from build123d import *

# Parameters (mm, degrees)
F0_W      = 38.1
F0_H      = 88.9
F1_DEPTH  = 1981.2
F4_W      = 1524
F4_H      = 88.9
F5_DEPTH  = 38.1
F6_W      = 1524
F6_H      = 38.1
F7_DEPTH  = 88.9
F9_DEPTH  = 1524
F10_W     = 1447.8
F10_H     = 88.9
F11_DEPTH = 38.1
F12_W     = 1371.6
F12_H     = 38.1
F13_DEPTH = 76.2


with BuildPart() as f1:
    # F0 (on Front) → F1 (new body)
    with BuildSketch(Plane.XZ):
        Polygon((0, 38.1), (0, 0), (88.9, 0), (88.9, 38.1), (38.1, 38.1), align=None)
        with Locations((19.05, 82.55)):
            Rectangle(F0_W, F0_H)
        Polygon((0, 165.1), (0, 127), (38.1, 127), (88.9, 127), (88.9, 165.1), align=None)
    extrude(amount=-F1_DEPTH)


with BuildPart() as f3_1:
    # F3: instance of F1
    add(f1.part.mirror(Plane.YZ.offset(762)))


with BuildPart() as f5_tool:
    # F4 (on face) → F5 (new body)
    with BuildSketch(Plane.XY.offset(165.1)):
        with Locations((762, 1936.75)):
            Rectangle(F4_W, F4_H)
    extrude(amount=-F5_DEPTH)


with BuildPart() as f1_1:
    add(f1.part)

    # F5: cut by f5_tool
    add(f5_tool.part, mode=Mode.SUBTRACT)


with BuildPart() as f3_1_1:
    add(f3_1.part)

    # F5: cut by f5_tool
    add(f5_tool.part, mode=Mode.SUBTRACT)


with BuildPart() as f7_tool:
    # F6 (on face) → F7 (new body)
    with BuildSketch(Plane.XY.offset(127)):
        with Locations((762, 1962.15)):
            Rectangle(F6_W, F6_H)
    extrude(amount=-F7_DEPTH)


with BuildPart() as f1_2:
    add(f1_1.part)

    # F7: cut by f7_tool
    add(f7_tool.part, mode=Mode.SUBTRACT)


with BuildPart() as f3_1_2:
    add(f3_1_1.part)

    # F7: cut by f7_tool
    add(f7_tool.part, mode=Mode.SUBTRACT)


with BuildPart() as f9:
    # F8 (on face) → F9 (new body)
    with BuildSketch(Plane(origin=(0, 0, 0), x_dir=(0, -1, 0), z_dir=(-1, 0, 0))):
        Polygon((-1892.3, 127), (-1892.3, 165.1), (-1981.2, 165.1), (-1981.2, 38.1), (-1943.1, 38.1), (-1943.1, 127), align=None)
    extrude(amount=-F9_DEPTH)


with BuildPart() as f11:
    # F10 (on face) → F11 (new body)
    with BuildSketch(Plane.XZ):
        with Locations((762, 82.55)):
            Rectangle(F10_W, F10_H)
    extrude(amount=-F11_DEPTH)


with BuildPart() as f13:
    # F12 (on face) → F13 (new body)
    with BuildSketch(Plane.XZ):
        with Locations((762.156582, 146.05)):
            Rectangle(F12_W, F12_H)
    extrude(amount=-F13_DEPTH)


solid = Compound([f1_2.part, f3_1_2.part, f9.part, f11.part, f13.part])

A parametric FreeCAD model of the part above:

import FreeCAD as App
import Part
import Sketcher
from FreeCAD import Vector
Q = App.Units.Quantity

doc = App.newDocument("Part")
body = doc.addObject("PartDesign::Body", "Body")

# Sketch on XZ plane
sketch1 = body.newObject("Sketcher::SketchObject", "Sketch")
sketch1.AttachmentSupport = (doc.getObject("XZ_Plane"), [""])
sketch1.MapMode = "FlatFace"
sketch1.addGeometry(Part.LineSegment(Vector(0, 0, 0), Vector(89, 0, 0)), False)
sketch1.addGeometry(Part.LineSegment(Vector(89, 0, 0), Vector(89, 38, 0)), False)
sketch1.addGeometry(Part.LineSegment(Vector(89, 38, 0), Vector(38, 38, 0)), False)
sketch1.addGeometry(Part.LineSegment(Vector(38, 38, 0), Vector(38, 127, 0)), False)
sketch1.addGeometry(Part.LineSegment(Vector(38, 127, 0), Vector(89, 127, 0)), False)
sketch1.addGeometry(Part.LineSegment(Vector(89, 127, 0), Vector(89, 165, 0)), False)
sketch1.addGeometry(Part.LineSegment(Vector(89, 165, 0), Vector(0, 165, 0)), False)
sketch1.addGeometry(Part.LineSegment(Vector(0, 165, 0), Vector(0, 0, 0)), False)
sketch1.addConstraint(Sketcher.Constraint("Coincident", 0, 2, 1, 1))
sketch1.addConstraint(Sketcher.Constraint("Coincident", 1, 2, 2, 1))
sketch1.addConstraint(Sketcher.Constraint("Coincident", 2, 2, 3, 1))
sketch1.addConstraint(Sketcher.Constraint("Coincident", 3, 2, 4, 1))
sketch1.addConstraint(Sketcher.Constraint("Coincident", 4, 2, 5, 1))
sketch1.addConstraint(Sketcher.Constraint("Coincident", 5, 2, 6, 1))
sketch1.addConstraint(Sketcher.Constraint("Coincident", 6, 2, 7, 1))
sketch1.addConstraint(Sketcher.Constraint("Coincident", 7, 2, 0, 1))
sketch1.addConstraint(Sketcher.Constraint("Horizontal", 0))
sketch1.addConstraint(Sketcher.Constraint("Vertical", 1))
sketch1.addConstraint(Sketcher.Constraint("Horizontal", 2))
sketch1.addConstraint(Sketcher.Constraint("Vertical", 3))
sketch1.addConstraint(Sketcher.Constraint("Horizontal", 4))
sketch1.addConstraint(Sketcher.Constraint("Vertical", 5))
sketch1.addConstraint(Sketcher.Constraint("Horizontal", 6))
sketch1.addConstraint(Sketcher.Constraint("Vertical", 7))
sketch1.addConstraint(Sketcher.Constraint("Coincident", 7, 2, -1, 1))
sketch1.addConstraint(Sketcher.Constraint("Vertical", 1, 2, 4, 2))
sketch1.addConstraint(Sketcher.Constraint("Equal", 6, 3))
sketch1.addConstraint(Sketcher.Constraint("Equal", 1, 5))
sketch1.addConstraint(Sketcher.Constraint("DistanceX", 2, 2, 2, 1, Q("2 in")))
sketch1.addConstraint(Sketcher.Constraint("DistanceX", 0, 1, 0, 2, Q("3.5 in")))
sketch1.addConstraint(Sketcher.Constraint("DistanceY", 1, 1, 1, 2, Q("1.5 in")))
pad1 = body.newObject("PartDesign::Pad", "Pad")
pad1.Profile = sketch1
pad1.Length = Q("78 in")
pad1.Reversed = True
body2 = doc.addObject("PartDesign::Body", "Body001")
doc.recompute()

mirroring = doc.addObject("Part::Mirroring", "Mirroring")
mirroring.Source = body
mirroring.Base = Vector(762, 0, 0)
mirroring.Normal = Vector(1, 0, 0)
body2.BaseFeature = mirroring
doc.recompute()
body3 = doc.addObject("PartDesign::Body", "Body002")

# Sketch on XY plane
sketch2 = body3.newObject("Sketcher::SketchObject", "Sketch001")
sketch2.AttachmentSupport = (doc.getObject("XY_Plane002"), [""])
sketch2.MapMode = "FlatFace"
sketch2.AttachmentOffset = App.Placement(Vector(0, 0, 6.5 * 25.4), App.Rotation())
sketch2.addGeometry(Part.LineSegment(Vector(0, 1981, 0), Vector(0, 1892, 0)), False)
sketch2.addGeometry(Part.LineSegment(Vector(0, 1892, 0), Vector(1524, 1892, 0)), False)
sketch2.addGeometry(Part.LineSegment(Vector(1524, 1892, 0), Vector(1524, 1981, 0)), False)
sketch2.addGeometry(Part.LineSegment(Vector(1524, 1981, 0), Vector(0, 1981, 0)), False)
sketch2.addConstraint(Sketcher.Constraint("Coincident", 0, 2, 1, 1))
sketch2.addConstraint(Sketcher.Constraint("Coincident", 1, 2, 2, 1))
sketch2.addConstraint(Sketcher.Constraint("Coincident", 2, 2, 3, 1))
sketch2.addConstraint(Sketcher.Constraint("Coincident", 3, 2, 0, 1))
sketch2.addConstraint(Sketcher.Constraint("Vertical", 0))
sketch2.addConstraint(Sketcher.Constraint("Horizontal", 1))
sketch2.addConstraint(Sketcher.Constraint("Vertical", 2))
sketch2.addConstraint(Sketcher.Constraint("Horizontal", 3))
sketch2.addConstraint(Sketcher.Constraint("PointOnObject", 0, 2, -2))
sketch2.addConstraint(Sketcher.Constraint("DistanceX", 1, 1, 1, 2, Q("60 in")))
sketch2.addConstraint(Sketcher.Constraint("DistanceY", 0, 2, 0, 1, Q("3.5 in")))
sketch2.addConstraint(Sketcher.Constraint("DistanceY", -1, 1, 2, 2, Q("78 in")))
pad2 = body3.newObject("PartDesign::Pad", "Pad001")
pad2.Profile = sketch2
pad2.Length = Q("1.5 in")
pad2.Reversed = True
doc.recompute()

body4 = doc.addObject("PartDesign::Body", "Body003")
body4.BaseFeature = body3
boolean = body.newObject("PartDesign::Boolean", "Boolean")
boolean.Type = "Cut"
boolean.addObjects([body4])
doc.recompute()

boolean2 = body2.newObject("PartDesign::Boolean", "Boolean001")
boolean2.Type = "Cut"
boolean2.addObjects([body3])
body5 = doc.addObject("PartDesign::Body", "Body004")

# Sketch on XY plane
sketch3 = body5.newObject("Sketcher::SketchObject", "Sketch002")
sketch3.AttachmentSupport = (doc.getObject("XY_Plane004"), [""])
sketch3.MapMode = "FlatFace"
sketch3.AttachmentOffset = App.Placement(Vector(0, 0, 5 * 25.4), App.Rotation())
sketch3.addGeometry(Part.LineSegment(Vector(0, 1981, 0), Vector(0, 1943, 0)), False)
sketch3.addGeometry(Part.LineSegment(Vector(0, 1943, 0), Vector(1524, 1943, 0)), False)
sketch3.addGeometry(Part.LineSegment(Vector(1524, 1943, 0), Vector(1524, 1981, 0)), False)
sketch3.addGeometry(Part.LineSegment(Vector(1524, 1981, 0), Vector(0, 1981, 0)), False)
sketch3.addConstraint(Sketcher.Constraint("Coincident", 0, 2, 1, 1))
sketch3.addConstraint(Sketcher.Constraint("Coincident", 1, 2, 2, 1))
sketch3.addConstraint(Sketcher.Constraint("Coincident", 2, 2, 3, 1))
sketch3.addConstraint(Sketcher.Constraint("Coincident", 3, 2, 0, 1))
sketch3.addConstraint(Sketcher.Constraint("Vertical", 0))
sketch3.addConstraint(Sketcher.Constraint("Horizontal", 1))
sketch3.addConstraint(Sketcher.Constraint("Vertical", 2))
sketch3.addConstraint(Sketcher.Constraint("Horizontal", 3))
sketch3.addConstraint(Sketcher.Constraint("PointOnObject", 0, 2, -2))
sketch3.addConstraint(Sketcher.Constraint("DistanceX", 1, 1, 1, 2, Q("60 in")))
sketch3.addConstraint(Sketcher.Constraint("DistanceY", 0, 2, 0, 1, Q("1.5 in")))
sketch3.addConstraint(Sketcher.Constraint("DistanceY", -1, 1, 2, 2, Q("78 in")))
pad3 = body5.newObject("PartDesign::Pad", "Pad002")
pad3.Profile = sketch3
pad3.Length = Q("3.5 in")
pad3.Reversed = True
doc.recompute()

body6 = doc.addObject("PartDesign::Body", "Body005")
body6.BaseFeature = body5
boolean3 = body.newObject("PartDesign::Boolean", "Boolean002")
boolean3.Type = "Cut"
boolean3.addObjects([body6])
doc.recompute()

boolean4 = body2.newObject("PartDesign::Boolean", "Boolean003")
boolean4.Type = "Cut"
boolean4.addObjects([body5])
body7 = doc.addObject("PartDesign::Body", "Body006")

# Sketch on YZ plane
sketch4 = body7.newObject("Sketcher::SketchObject", "Sketch003")
sketch4.AttachmentSupport = (doc.getObject("YZ_Plane006"), [""])
sketch4.MapMode = "FlatFace"
sketch4.addGeometry(Part.LineSegment(Vector(1892, 127, 0), Vector(1892, 165, 0)), False)
sketch4.addGeometry(Part.LineSegment(Vector(1892, 165, 0), Vector(1981, 165, 0)), False)
sketch4.addGeometry(Part.LineSegment(Vector(1981, 165, 0), Vector(1981, 38, 0)), False)
sketch4.addGeometry(Part.LineSegment(Vector(1981, 38, 0), Vector(1943, 38, 0)), False)
sketch4.addGeometry(Part.LineSegment(Vector(1943, 38, 0), Vector(1943, 127, 0)), False)
sketch4.addGeometry(Part.LineSegment(Vector(1943, 127, 0), Vector(1892, 127, 0)), False)
sketch4.addConstraint(Sketcher.Constraint("Coincident", 0, 2, 1, 1))
sketch4.addConstraint(Sketcher.Constraint("Coincident", 1, 2, 2, 1))
sketch4.addConstraint(Sketcher.Constraint("Coincident", 2, 2, 3, 1))
sketch4.addConstraint(Sketcher.Constraint("Coincident", 3, 2, 4, 1))
sketch4.addConstraint(Sketcher.Constraint("Coincident", 4, 2, 5, 1))
sketch4.addConstraint(Sketcher.Constraint("Coincident", 5, 2, 0, 1))
sketch4.addConstraint(Sketcher.Constraint("Vertical", 0))
sketch4.addConstraint(Sketcher.Constraint("Horizontal", 1))
sketch4.addConstraint(Sketcher.Constraint("Vertical", 2))
sketch4.addConstraint(Sketcher.Constraint("Horizontal", 3))
sketch4.addConstraint(Sketcher.Constraint("Vertical", 4))
sketch4.addConstraint(Sketcher.Constraint("Horizontal", 5))
sketch4.addConstraint(Sketcher.Constraint("Equal", 3, 0))
sketch4.addConstraint(Sketcher.Constraint("Equal", 1, 4))
sketch4.addConstraint(Sketcher.Constraint("DistanceX", 5, 2, 5, 1, Q("2 in")))
sketch4.addConstraint(Sketcher.Constraint("DistanceY", 2, 2, 2, 1, Q("5 in")))
sketch4.addConstraint(Sketcher.Constraint("DistanceX", -1, 1, 1, 2, Q("78 in")))
sketch4.addConstraint(Sketcher.Constraint("DistanceY", -1, 1, 4, 2, Q("5 in")))
pad4 = body7.newObject("PartDesign::Pad", "Pad003")
pad4.Profile = sketch4
pad4.Length = Q("60 in")
body8 = doc.addObject("PartDesign::Body", "Body007")

# Sketch on XZ plane
sketch5 = body8.newObject("Sketcher::SketchObject", "Sketch004")
sketch5.AttachmentSupport = (doc.getObject("XZ_Plane007"), [""])
sketch5.MapMode = "FlatFace"
sketch5.addGeometry(Part.LineSegment(Vector(38, 127, 0), Vector(38, 38, 0)), False)
sketch5.addGeometry(Part.LineSegment(Vector(38, 38, 0), Vector(1486, 38, 0)), False)
sketch5.addGeometry(Part.LineSegment(Vector(1486, 38, 0), Vector(1486, 127, 0)), False)
sketch5.addGeometry(Part.LineSegment(Vector(1486, 127, 0), Vector(38, 127, 0)), False)
sketch5.addConstraint(Sketcher.Constraint("Coincident", 0, 2, 1, 1))
sketch5.addConstraint(Sketcher.Constraint("Coincident", 1, 2, 2, 1))
sketch5.addConstraint(Sketcher.Constraint("Coincident", 2, 2, 3, 1))
sketch5.addConstraint(Sketcher.Constraint("Coincident", 3, 2, 0, 1))
sketch5.addConstraint(Sketcher.Constraint("Vertical", 0))
sketch5.addConstraint(Sketcher.Constraint("Horizontal", 1))
sketch5.addConstraint(Sketcher.Constraint("Vertical", 2))
sketch5.addConstraint(Sketcher.Constraint("Horizontal", 3))
sketch5.addConstraint(Sketcher.Constraint("DistanceX", 1, 1, 1, 2, Q("57 in")))
sketch5.addConstraint(Sketcher.Constraint("DistanceY", 0, 2, 0, 1, Q("3.5 in")))
sketch5.addConstraint(Sketcher.Constraint("DistanceY", -1, 1, 2, 2, Q("5 in")))
sketch5.addConstraint(Sketcher.Constraint("DistanceX", -1, 1, 0, 2, Q("1.5 in")))
pad5 = body8.newObject("PartDesign::Pad", "Pad004")
pad5.Profile = sketch5
pad5.Length = Q("1.5 in")
pad5.Reversed = True
body9 = doc.addObject("PartDesign::Body", "Body008")

# Sketch on XZ plane
sketch6 = body9.newObject("Sketcher::SketchObject", "Sketch005")
sketch6.AttachmentSupport = (doc.getObject("XZ_Plane008"), [""])
sketch6.MapMode = "FlatFace"
sketch6.addGeometry(Part.LineSegment(Vector(76, 165, 0), Vector(76, 127, 0)), False)
sketch6.addGeometry(Part.LineSegment(Vector(76, 127, 0), Vector(1448, 127, 0)), False)
sketch6.addGeometry(Part.LineSegment(Vector(1448, 127, 0), Vector(1448, 165, 0)), False)
sketch6.addGeometry(Part.LineSegment(Vector(1448, 165, 0), Vector(76, 165, 0)), False)
sketch6.addConstraint(Sketcher.Constraint("Coincident", 0, 2, 1, 1))
sketch6.addConstraint(Sketcher.Constraint("Coincident", 1, 2, 2, 1))
sketch6.addConstraint(Sketcher.Constraint("Coincident", 2, 2, 3, 1))
sketch6.addConstraint(Sketcher.Constraint("Coincident", 3, 2, 0, 1))
sketch6.addConstraint(Sketcher.Constraint("Vertical", 0))
sketch6.addConstraint(Sketcher.Constraint("Horizontal", 1))
sketch6.addConstraint(Sketcher.Constraint("Vertical", 2))
sketch6.addConstraint(Sketcher.Constraint("Horizontal", 3))
sketch6.addConstraint(Sketcher.Constraint("DistanceX", 1, 1, 1, 2, Q("54 in")))
sketch6.addConstraint(Sketcher.Constraint("DistanceY", 0, 2, 0, 1, Q("1.5 in")))
sketch6.addConstraint(Sketcher.Constraint("DistanceY", -1, 1, 0, 2, Q("5 in")))
sketch6.addConstraint(Sketcher.Constraint("DistanceX", -1, 1, 1, 2, Q("1447.956582 mm")))
pad6 = body9.newObject("PartDesign::Pad", "Pad005")
pad6.Profile = sketch6
pad6.Length = Q("3 in")
pad6.Reversed = True
mirroring.Visibility = False

doc.recompute()
